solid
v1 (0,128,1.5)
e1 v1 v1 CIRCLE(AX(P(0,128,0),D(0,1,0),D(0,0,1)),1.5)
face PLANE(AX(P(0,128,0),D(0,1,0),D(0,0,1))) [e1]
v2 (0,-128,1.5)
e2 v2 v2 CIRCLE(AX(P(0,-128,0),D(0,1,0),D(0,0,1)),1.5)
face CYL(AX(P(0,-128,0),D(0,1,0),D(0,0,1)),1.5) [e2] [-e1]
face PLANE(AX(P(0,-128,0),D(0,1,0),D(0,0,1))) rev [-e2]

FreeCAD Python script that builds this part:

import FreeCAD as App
import Part
import Sketcher

doc = App.newDocument("Part")
body = doc.addObject("PartDesign::Body", "Body")

sketch1 = body.newObject("Sketcher::SketchObject", "Sketch")
sketch1.AttachmentSupport = (doc.getObject("XZ_Plane"), [""])
sketch1.MapMode = "FlatFace"
sketch1.addGeometry(Part.Circle(App.Vector(0, 0, 0), App.Vector(0, 0, 1), 1.5), False)
sketch1.addConstraint(Sketcher.Constraint("Coincident", 0, 3, -1, 1))
sketch1.addConstraint(Sketcher.Constraint("Diameter", 0, 3.0))
pad1 = body.newObject("PartDesign::Pad", "Pad")
pad1.Profile = sketch1
pad1.Type = "TwoLengths"
pad1.Length = 128
pad1.Length2 = 128
pad1.Reversed = True

doc.recompute()
